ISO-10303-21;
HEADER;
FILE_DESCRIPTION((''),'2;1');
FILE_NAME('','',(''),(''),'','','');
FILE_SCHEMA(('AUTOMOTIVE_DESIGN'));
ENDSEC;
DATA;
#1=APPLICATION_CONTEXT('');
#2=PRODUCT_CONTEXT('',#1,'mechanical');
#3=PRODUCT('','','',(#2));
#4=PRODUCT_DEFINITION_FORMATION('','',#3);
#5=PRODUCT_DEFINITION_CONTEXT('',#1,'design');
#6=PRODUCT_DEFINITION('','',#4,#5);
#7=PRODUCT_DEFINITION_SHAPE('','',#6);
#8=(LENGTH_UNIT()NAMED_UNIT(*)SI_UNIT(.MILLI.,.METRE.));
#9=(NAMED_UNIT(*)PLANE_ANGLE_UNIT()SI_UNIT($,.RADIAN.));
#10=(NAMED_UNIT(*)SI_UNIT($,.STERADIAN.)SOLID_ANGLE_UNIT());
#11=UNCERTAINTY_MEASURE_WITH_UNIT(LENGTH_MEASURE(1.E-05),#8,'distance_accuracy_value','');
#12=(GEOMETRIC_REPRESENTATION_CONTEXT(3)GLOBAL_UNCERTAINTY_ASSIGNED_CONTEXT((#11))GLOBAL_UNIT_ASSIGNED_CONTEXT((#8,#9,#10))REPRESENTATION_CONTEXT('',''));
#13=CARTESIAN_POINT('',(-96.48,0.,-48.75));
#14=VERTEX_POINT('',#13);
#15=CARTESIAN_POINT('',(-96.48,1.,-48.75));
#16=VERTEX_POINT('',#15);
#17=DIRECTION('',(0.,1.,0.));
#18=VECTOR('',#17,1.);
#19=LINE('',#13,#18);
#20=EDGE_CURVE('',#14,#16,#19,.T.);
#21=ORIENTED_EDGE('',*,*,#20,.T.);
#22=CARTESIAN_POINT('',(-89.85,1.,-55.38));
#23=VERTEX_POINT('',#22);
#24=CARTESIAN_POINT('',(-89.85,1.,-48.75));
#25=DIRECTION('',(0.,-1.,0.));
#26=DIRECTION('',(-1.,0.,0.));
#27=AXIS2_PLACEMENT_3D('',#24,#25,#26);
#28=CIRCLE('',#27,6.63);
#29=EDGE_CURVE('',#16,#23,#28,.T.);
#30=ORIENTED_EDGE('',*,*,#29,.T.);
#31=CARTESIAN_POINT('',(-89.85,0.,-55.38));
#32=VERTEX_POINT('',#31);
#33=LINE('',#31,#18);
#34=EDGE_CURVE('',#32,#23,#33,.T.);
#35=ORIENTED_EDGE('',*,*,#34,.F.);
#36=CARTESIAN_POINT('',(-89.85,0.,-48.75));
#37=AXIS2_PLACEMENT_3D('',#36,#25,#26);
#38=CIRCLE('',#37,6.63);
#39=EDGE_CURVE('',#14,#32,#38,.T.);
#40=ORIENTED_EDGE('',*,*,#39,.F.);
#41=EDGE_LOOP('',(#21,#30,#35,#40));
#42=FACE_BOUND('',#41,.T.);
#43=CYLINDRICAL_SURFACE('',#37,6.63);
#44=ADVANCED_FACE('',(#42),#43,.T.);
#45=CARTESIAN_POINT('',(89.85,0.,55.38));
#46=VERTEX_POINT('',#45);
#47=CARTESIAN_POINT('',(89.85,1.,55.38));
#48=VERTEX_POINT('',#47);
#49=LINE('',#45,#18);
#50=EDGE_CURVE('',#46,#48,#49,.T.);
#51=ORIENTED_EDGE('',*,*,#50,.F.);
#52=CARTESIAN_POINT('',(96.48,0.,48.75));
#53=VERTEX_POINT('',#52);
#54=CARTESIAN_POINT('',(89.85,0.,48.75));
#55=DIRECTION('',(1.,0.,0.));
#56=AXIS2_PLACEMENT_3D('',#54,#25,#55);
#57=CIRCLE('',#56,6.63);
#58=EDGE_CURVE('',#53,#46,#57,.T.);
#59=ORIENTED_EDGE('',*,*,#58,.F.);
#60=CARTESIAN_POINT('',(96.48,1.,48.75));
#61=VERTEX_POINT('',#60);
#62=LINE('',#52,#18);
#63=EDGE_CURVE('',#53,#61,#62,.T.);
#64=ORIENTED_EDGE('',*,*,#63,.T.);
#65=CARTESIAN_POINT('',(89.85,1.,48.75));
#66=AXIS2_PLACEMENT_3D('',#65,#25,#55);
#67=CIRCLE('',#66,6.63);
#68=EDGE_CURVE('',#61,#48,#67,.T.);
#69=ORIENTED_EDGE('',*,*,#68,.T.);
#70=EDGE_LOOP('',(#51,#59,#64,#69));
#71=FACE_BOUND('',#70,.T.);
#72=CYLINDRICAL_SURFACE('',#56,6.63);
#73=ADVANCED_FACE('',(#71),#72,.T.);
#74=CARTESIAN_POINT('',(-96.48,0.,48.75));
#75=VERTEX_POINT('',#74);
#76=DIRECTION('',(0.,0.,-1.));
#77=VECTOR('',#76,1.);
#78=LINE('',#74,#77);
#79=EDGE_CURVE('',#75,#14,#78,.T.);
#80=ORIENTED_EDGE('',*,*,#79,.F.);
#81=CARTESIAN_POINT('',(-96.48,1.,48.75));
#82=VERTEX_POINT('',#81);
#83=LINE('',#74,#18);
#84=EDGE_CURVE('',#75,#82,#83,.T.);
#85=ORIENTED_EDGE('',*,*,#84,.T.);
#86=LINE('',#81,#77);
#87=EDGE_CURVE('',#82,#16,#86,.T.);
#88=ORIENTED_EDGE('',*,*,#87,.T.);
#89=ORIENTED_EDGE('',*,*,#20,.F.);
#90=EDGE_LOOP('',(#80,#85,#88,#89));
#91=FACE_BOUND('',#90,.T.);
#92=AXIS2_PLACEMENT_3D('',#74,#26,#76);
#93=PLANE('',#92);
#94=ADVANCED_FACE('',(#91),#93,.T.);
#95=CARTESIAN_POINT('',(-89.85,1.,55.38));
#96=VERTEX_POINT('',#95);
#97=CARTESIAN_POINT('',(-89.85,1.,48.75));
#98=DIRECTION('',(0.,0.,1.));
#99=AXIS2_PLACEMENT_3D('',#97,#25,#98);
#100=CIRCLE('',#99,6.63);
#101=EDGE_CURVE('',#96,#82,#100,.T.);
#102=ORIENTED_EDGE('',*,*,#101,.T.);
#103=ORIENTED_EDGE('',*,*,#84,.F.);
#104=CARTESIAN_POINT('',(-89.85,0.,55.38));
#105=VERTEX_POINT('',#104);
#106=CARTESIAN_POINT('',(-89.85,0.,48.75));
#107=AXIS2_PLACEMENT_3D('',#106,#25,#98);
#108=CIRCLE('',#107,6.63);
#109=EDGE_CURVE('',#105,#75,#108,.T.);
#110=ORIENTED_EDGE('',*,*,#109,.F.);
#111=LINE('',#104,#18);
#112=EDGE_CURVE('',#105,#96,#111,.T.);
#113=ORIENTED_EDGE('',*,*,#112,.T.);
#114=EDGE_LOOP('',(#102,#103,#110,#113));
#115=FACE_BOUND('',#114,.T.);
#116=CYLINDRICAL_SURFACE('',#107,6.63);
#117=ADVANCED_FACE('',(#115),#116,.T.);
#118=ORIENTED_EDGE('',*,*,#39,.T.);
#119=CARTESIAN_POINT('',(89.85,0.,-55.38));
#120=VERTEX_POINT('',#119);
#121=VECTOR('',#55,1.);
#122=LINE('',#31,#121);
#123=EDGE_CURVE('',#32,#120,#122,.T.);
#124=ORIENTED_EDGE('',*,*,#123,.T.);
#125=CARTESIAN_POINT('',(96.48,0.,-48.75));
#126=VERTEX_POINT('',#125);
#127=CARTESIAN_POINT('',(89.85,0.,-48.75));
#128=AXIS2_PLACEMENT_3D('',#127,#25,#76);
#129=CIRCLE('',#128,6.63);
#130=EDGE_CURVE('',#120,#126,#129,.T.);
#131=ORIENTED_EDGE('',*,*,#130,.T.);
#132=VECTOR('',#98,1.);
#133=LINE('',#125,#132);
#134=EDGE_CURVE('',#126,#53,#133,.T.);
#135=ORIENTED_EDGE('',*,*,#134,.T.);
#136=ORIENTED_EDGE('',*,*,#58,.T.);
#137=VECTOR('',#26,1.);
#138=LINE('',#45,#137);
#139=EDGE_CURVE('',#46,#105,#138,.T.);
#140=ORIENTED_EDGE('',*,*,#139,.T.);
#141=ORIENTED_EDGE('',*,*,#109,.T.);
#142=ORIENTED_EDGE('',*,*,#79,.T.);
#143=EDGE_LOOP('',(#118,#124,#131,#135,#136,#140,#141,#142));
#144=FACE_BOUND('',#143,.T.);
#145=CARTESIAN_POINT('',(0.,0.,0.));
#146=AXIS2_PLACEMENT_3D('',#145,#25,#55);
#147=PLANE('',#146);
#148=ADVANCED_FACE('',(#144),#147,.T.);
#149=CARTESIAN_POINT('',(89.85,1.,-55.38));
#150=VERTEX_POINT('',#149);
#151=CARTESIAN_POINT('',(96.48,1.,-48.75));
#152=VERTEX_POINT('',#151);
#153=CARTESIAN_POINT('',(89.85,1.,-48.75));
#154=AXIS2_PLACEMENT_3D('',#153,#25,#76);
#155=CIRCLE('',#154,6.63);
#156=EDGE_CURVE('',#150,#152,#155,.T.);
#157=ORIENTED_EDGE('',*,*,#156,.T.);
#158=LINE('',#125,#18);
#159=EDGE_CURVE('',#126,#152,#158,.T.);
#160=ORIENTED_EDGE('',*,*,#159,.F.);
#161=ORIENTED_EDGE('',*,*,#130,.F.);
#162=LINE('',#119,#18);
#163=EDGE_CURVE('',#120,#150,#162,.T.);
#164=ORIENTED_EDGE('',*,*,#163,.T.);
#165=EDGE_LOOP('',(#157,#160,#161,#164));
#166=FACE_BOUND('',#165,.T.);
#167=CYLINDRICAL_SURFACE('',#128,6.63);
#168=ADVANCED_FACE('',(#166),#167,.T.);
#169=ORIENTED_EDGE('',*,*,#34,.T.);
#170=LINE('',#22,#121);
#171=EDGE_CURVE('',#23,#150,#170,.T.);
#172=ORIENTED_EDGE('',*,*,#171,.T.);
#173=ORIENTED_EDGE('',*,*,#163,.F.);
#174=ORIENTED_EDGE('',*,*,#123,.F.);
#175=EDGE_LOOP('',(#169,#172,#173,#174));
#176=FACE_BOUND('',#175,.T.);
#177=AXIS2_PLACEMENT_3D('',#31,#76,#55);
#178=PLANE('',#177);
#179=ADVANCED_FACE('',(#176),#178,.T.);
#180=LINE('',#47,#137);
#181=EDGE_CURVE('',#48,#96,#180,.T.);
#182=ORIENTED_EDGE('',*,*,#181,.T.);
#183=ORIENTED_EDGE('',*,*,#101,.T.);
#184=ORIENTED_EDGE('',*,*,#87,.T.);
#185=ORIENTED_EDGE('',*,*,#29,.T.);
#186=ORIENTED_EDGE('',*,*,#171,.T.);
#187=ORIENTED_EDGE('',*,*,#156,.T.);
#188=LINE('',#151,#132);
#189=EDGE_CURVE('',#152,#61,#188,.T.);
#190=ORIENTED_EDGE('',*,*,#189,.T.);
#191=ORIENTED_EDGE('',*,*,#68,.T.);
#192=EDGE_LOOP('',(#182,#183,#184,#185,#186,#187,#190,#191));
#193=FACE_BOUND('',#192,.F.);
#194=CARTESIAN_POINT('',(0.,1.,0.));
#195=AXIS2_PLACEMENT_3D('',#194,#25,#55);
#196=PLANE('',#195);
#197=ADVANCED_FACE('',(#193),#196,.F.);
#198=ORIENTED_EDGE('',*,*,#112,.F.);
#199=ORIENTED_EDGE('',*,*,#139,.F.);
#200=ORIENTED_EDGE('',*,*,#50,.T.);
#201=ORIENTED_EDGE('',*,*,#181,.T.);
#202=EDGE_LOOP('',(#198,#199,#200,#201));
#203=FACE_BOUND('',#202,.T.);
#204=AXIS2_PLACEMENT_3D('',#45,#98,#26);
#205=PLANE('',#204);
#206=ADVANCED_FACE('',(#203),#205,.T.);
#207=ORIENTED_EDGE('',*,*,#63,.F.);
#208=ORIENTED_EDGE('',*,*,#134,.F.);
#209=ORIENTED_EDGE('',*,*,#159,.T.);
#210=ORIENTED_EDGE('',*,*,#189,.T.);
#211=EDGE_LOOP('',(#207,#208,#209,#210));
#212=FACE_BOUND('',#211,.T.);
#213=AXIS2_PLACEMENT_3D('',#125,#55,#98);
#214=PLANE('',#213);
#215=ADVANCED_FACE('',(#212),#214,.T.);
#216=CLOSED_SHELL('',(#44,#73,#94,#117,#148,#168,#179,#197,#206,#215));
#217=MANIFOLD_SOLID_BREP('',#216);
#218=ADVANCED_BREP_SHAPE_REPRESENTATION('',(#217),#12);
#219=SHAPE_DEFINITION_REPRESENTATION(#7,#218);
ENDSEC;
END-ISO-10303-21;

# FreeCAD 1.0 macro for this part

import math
import FreeCAD as App
import Part
import Sketcher

doc = App.newDocument("Part")
body = doc.addObject("PartDesign::Body", "Body")

# Sketch on XZ plane
sketch1 = body.newObject("Sketcher::SketchObject", "Sketch")
sketch1.AttachmentSupport = (doc.getObject("XZ_Plane"), [""])
sketch1.MapMode = "FlatFace"
sketch1.addGeometry(Part.LineSegment(App.Vector(89.85, 55.38, 0), App.Vector(-89.85, 55.38, 0)), False)
sketch1.addGeometry(Part.ArcOfCircle(Part.Circle(App.Vector(-89.85, 48.75, 0), App.Vector(0, 0, 1), 6.63), math.radians(90), math.radians(180)), False)
sketch1.addGeometry(Part.LineSegment(App.Vector(-96.48, 48.75, 0), App.Vector(-96.48, -48.75, 0)), False)
sketch1.addGeometry(Part.ArcOfCircle(Part.Circle(App.Vector(-89.85, -48.75, 0), App.Vector(0, 0, 1), 6.63), math.radians(180), math.radians(270)), False)
sketch1.addGeometry(Part.LineSegment(App.Vector(-89.85, -55.38, 0), App.Vector(89.85, -55.38, 0)), False)
sketch1.addGeometry(Part.ArcOfCircle(Part.Circle(App.Vector(89.85, -48.75, 0), App.Vector(0, 0, 1), 6.63), math.radians(-90), math.radians(0)), False)
sketch1.addGeometry(Part.LineSegment(App.Vector(96.48, -48.75, 0), App.Vector(96.48, 48.75, 0)), False)
sketch1.addGeometry(Part.ArcOfCircle(Part.Circle(App.Vector(89.85, 48.75, 0), App.Vector(0, 0, 1), 6.63), math.radians(0), math.radians(90)), False)
sketch1.addConstraint(Sketcher.Constraint("Tangent", 0, 2, 1, 1))
sketch1.addConstraint(Sketcher.Constraint("Tangent", 1, 2, 2, 1))
sketch1.addConstraint(Sketcher.Constraint("Tangent", 2, 2, 3, 1))
sketch1.addConstraint(Sketcher.Constraint("Tangent", 3, 2, 4, 1))
sketch1.addConstraint(Sketcher.Constraint("Tangent", 4, 2, 5, 1))
sketch1.addConstraint(Sketcher.Constraint("Tangent", 5, 2, 6, 1))
sketch1.addConstraint(Sketcher.Constraint("Tangent", 6, 2, 7, 1))
sketch1.addConstraint(Sketcher.Constraint("Tangent", 7, 2, 0, 1))
sketch1.addConstraint(Sketcher.Constraint("Horizontal", 0))
sketch1.addConstraint(Sketcher.Constraint("Vertical", 2))
sketch1.addConstraint(Sketcher.Constraint("Horizontal", 4))
sketch1.addConstraint(Sketcher.Constraint("Vertical", 6))
sketch1.addConstraint(Sketcher.Constraint("Equal", 1, 3))
sketch1.addConstraint(Sketcher.Constraint("Equal", 3, 5))
sketch1.addConstraint(Sketcher.Constraint("Equal", 5, 7))
sketch1.addConstraint(Sketcher.Constraint("Symmetric", 1, 3, 5, 3, -1, 1))
sketch1.addConstraint(Sketcher.Constraint("Radius", 1, 6.63))
sketch1.addConstraint(Sketcher.Constraint("DistanceX", 0, 2, 0, 1, 179.7))
sketch1.addConstraint(Sketcher.Constraint("DistanceY", 2, 2, 2, 1, 97.5))
pad1 = body.newObject("PartDesign::Pad", "Pad")
pad1.Profile = sketch1
pad1.Length = 1
pad1.Reversed = True

doc.recompute()
